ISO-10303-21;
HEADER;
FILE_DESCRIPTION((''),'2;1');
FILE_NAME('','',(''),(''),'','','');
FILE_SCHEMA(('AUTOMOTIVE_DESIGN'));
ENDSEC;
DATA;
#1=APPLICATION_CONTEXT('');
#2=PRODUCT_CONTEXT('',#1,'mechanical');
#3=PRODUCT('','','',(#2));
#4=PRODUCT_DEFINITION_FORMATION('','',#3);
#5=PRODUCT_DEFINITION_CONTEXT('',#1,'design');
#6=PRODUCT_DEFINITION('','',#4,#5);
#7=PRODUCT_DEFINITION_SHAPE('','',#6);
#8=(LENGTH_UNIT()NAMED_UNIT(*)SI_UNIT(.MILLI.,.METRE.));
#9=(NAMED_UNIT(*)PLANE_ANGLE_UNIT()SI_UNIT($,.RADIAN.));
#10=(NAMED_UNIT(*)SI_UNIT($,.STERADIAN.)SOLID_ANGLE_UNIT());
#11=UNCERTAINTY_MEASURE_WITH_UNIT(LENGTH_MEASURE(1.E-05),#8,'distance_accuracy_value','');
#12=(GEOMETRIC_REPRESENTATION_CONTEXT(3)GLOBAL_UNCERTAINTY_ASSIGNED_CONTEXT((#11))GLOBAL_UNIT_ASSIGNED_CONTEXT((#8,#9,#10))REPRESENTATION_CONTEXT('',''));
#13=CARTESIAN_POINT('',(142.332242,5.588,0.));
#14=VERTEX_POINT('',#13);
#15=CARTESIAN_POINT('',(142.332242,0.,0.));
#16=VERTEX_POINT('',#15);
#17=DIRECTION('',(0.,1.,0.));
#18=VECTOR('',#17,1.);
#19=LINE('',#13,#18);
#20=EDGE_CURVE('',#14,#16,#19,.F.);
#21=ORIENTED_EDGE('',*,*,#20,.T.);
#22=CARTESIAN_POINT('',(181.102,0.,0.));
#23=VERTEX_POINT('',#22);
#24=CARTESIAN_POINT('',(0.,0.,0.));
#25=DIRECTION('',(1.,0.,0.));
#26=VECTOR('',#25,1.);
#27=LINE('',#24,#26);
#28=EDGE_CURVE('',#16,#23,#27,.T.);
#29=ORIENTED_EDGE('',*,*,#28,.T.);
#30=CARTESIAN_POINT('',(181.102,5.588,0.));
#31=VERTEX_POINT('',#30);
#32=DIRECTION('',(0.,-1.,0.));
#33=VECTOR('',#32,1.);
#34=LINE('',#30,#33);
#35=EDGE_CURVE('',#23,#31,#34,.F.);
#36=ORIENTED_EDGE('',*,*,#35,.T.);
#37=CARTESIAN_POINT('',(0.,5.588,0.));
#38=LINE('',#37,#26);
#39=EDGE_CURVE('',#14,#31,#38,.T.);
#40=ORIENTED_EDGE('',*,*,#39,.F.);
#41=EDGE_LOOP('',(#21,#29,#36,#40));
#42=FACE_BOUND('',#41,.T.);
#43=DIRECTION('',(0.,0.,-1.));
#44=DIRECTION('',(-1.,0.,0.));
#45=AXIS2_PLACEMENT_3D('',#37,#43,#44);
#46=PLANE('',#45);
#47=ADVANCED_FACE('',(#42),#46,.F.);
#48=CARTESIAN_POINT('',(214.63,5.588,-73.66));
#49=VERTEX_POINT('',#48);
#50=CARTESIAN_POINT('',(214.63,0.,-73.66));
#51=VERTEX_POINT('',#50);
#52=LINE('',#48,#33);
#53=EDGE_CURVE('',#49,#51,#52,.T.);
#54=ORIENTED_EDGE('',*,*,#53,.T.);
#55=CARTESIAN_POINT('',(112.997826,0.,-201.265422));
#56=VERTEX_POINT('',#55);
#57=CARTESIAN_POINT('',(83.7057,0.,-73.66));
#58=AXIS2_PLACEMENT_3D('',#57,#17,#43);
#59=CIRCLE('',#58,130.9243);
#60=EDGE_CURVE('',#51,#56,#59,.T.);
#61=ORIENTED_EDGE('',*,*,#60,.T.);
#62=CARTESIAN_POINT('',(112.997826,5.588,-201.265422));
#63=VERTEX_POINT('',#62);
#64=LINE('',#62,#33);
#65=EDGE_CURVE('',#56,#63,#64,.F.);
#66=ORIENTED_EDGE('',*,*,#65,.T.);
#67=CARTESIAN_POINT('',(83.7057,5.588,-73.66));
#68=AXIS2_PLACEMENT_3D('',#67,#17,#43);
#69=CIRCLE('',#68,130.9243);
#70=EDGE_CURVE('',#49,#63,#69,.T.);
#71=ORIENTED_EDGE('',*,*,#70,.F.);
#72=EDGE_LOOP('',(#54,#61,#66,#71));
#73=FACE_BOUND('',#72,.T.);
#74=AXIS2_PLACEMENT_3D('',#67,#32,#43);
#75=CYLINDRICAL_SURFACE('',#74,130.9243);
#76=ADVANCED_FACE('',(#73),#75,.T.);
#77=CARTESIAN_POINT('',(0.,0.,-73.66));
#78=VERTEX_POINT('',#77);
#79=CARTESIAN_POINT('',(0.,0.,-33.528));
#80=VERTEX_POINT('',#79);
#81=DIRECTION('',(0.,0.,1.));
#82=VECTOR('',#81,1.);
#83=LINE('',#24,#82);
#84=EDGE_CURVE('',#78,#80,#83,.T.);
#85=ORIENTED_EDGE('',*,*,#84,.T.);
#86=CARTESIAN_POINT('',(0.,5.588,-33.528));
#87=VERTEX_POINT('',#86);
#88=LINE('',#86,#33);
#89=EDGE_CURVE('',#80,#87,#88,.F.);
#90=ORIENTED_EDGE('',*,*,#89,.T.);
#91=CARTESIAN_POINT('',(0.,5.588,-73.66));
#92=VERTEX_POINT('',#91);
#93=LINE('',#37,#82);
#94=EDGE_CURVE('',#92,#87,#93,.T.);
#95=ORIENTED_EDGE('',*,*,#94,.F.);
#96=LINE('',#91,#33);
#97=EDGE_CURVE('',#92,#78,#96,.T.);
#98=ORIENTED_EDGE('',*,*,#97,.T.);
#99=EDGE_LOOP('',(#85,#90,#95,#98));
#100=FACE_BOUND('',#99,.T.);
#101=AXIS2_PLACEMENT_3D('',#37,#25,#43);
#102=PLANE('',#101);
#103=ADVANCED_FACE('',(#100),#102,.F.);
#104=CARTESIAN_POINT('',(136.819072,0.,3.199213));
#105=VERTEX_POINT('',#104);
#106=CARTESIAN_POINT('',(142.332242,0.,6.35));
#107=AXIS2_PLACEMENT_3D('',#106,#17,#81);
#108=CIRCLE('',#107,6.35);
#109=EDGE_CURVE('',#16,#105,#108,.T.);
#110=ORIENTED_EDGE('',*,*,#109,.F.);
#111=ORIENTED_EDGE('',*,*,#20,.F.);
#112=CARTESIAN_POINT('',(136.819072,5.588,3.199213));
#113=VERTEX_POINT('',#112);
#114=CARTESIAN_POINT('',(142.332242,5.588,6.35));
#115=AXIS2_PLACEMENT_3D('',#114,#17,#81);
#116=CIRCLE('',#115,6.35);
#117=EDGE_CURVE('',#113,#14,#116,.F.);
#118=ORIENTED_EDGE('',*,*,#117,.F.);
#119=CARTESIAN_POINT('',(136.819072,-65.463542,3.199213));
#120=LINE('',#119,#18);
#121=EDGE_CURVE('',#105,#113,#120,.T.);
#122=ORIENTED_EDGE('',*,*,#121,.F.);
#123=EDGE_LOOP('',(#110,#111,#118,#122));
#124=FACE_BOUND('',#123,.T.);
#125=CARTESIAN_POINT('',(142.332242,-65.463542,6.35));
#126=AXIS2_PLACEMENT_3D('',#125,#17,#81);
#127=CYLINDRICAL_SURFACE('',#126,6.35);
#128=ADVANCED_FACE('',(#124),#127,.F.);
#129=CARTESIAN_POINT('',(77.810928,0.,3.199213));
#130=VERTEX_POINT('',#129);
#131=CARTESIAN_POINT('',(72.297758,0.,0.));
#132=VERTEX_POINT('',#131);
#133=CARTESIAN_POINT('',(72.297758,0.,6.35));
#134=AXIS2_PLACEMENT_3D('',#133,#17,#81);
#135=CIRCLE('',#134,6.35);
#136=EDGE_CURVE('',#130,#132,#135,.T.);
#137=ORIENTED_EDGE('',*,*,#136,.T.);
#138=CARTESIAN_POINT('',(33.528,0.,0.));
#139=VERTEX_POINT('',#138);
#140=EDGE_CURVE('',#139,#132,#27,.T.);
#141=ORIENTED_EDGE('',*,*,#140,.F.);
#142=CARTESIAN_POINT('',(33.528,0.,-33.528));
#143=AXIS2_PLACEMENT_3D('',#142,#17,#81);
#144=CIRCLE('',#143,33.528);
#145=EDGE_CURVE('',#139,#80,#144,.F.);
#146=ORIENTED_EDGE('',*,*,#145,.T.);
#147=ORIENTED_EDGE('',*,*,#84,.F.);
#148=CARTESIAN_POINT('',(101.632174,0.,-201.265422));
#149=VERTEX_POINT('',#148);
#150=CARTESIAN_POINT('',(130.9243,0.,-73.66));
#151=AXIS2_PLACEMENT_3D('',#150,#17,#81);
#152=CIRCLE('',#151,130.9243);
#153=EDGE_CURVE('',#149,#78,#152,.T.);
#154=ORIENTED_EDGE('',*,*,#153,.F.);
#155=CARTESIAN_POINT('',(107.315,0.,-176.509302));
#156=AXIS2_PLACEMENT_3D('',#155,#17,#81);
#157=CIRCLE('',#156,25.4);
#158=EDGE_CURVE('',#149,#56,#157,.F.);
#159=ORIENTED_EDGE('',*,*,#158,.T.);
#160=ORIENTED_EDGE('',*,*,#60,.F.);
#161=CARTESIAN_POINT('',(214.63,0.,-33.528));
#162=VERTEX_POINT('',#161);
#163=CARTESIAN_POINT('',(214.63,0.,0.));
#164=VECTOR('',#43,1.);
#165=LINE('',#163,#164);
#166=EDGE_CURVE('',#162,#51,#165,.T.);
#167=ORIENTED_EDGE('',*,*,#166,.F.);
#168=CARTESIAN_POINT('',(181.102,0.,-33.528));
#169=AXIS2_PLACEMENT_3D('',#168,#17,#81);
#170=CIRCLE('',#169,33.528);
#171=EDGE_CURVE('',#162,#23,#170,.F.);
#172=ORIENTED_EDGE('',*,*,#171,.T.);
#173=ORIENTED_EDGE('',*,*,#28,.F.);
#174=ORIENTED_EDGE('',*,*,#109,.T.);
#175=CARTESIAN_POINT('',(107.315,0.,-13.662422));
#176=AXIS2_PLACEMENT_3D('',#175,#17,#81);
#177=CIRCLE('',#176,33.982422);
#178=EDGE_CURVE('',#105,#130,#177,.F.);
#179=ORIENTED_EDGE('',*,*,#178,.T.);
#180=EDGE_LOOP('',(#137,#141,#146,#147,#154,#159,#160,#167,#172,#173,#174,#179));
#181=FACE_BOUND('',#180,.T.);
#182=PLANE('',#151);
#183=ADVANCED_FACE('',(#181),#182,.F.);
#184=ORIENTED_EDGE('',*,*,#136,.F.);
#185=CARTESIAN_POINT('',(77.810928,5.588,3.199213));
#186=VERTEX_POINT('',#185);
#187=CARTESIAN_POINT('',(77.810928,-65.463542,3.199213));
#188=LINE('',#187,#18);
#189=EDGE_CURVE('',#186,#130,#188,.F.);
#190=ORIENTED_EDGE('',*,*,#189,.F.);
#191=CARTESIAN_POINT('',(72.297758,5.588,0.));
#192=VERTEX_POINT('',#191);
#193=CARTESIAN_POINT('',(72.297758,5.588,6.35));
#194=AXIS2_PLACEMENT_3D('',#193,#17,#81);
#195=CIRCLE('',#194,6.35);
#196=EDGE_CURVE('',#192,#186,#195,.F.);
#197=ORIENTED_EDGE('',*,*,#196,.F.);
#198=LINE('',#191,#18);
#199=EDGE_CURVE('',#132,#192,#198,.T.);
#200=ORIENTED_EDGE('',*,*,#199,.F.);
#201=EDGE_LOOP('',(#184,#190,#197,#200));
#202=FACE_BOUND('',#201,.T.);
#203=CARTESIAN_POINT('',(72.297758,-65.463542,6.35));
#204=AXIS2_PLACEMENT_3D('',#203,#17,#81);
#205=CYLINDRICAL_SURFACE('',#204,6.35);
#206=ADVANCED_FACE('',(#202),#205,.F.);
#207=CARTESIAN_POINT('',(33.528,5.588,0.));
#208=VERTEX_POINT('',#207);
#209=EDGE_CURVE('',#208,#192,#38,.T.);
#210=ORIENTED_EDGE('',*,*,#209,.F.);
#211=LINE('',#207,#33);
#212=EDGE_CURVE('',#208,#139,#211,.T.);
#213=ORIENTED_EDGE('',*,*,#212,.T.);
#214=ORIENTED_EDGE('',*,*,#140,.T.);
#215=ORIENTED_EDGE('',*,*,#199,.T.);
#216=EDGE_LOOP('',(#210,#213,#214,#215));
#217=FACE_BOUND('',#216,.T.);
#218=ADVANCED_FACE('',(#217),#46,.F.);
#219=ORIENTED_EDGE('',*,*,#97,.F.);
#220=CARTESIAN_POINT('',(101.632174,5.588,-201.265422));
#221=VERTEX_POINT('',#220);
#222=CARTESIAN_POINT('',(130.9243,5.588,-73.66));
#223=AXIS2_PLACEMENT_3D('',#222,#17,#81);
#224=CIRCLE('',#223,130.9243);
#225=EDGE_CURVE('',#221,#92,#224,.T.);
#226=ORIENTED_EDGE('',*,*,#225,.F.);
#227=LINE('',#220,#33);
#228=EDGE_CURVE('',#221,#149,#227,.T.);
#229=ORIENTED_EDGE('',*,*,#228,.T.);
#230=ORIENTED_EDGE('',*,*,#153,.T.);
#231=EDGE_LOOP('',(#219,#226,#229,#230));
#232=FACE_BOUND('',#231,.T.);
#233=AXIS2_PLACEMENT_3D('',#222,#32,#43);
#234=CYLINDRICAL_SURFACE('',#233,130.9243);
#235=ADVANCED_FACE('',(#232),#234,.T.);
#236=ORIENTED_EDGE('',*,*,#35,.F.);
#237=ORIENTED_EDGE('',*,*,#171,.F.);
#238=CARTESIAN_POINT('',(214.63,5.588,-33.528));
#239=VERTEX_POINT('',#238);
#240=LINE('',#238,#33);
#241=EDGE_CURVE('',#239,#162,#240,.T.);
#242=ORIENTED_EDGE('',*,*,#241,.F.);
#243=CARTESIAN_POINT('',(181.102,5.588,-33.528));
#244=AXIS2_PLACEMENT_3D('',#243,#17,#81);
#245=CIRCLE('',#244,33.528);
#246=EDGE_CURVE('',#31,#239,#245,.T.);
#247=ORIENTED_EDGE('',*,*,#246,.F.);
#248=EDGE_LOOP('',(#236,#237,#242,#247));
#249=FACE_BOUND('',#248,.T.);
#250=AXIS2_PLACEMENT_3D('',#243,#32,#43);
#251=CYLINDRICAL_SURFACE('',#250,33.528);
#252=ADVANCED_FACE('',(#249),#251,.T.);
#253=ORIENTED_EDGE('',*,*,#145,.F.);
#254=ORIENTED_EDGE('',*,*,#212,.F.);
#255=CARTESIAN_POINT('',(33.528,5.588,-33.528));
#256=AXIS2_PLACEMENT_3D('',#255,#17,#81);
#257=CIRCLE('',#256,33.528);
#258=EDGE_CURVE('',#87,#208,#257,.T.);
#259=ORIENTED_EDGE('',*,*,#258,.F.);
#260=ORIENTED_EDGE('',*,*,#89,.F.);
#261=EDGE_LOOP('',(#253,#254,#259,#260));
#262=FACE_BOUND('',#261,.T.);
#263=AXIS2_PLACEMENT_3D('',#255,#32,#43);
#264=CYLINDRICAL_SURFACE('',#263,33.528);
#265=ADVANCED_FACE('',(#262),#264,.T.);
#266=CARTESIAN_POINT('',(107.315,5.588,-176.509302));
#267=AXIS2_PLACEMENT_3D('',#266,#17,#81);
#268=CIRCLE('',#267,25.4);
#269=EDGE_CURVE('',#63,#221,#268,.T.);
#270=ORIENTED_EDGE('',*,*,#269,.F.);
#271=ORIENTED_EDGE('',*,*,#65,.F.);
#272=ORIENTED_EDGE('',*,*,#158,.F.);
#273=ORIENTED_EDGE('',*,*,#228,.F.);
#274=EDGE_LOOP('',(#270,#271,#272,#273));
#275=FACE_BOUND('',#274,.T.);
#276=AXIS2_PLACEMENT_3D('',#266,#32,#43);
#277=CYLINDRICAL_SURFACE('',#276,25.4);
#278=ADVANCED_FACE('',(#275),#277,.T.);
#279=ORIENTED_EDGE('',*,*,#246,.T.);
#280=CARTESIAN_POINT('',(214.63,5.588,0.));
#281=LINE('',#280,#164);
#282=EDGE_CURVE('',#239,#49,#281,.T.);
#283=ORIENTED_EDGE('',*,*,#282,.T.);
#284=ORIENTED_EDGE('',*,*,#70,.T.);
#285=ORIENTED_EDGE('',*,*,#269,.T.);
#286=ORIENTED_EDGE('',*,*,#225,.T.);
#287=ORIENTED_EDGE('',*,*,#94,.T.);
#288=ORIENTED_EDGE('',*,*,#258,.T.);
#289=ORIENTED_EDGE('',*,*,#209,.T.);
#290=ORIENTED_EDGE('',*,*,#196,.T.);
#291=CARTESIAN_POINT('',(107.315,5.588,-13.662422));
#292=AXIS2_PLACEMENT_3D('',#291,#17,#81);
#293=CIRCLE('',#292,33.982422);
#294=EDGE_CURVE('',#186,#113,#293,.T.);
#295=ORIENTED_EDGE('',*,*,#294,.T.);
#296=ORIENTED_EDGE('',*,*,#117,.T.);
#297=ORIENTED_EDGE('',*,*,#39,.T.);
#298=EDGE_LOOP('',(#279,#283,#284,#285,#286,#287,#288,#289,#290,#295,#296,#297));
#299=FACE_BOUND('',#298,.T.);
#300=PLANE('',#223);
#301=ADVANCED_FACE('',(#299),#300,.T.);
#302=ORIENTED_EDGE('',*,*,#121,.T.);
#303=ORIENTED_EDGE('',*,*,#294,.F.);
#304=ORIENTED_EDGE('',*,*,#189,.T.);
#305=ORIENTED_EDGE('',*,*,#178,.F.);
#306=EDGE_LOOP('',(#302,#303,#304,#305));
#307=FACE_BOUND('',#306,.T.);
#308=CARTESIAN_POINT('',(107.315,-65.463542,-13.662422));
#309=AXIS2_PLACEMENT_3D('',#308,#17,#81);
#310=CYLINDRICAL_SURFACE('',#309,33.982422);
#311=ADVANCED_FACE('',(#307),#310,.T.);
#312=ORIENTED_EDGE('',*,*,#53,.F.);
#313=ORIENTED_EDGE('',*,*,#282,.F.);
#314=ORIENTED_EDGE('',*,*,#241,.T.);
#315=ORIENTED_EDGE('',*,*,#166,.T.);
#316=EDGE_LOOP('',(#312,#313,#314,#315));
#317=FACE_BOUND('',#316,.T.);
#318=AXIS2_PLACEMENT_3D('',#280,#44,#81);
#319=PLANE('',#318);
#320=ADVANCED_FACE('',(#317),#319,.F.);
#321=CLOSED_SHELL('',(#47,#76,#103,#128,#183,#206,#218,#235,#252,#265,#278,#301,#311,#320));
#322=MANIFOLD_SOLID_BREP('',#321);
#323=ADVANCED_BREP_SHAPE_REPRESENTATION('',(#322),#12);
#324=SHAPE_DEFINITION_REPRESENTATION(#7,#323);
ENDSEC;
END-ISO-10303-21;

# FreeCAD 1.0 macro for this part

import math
import FreeCAD as App
import Part
import Sketcher

V = App.Vector
Q = App.Units.Quantity


def edges_at(feature, points):
    """Names of the edges that pass closest to the given points."""
    edges = feature.Shape.Edges
    near = lambda p: min(range(len(edges)), key=lambda i: edges[i].distToShape(Part.Vertex(*p))[0])
    return sorted({f"Edge{near(p) + 1}" for p in points})

doc = App.newDocument("Part")
body = doc.addObject("PartDesign::Body", "Body")

sketch1 = body.newObject("Sketcher::SketchObject", "Sketch")
sketch1.AttachmentSupport = (doc.getObject("XZ_Plane"), [""])
sketch1.MapMode = "FlatFace"
sketch1.addGeometry([
    Part.LineSegment(V(0, 0, 0), V(215, 0, 0)),
    Part.LineSegment(V(215, 0, 0), V(215, -74, 0)),
    Part.ArcOfCircle(Part.Circle(V(84, -74, 0), V(0, 0, 1), 131), math.radians(-80), math.radians(0)),
    Part.ArcOfCircle(Part.Circle(V(131, -74, 0), V(0, 0, 1), 131), math.radians(-180), math.radians(-100)),
    Part.LineSegment(V(0, -74, 0), V(0, 0, 0)),
], False)
sketch1.addConstraint([
    Sketcher.Constraint("Coincident", 0, 2, 1, 1),
    Sketcher.Constraint("Tangent", 1, 2, 2, 2),
    Sketcher.Constraint("Coincident", 2, 1, 3, 2),
    Sketcher.Constraint("Tangent", 3, 1, 4, 1),
    Sketcher.Constraint("Coincident", 4, 2, 0, 1),
    Sketcher.Constraint("Horizontal", 0),
    Sketcher.Constraint("Vertical", 1),
    Sketcher.Constraint("Vertical", 4),
    Sketcher.Constraint("Coincident", 4, 2, -1, 1),
    Sketcher.Constraint("Equal", 2, 3),
    Sketcher.Constraint("Horizontal", 2, 3, 3, 3),
    Sketcher.Constraint("DistanceY", 1, 2, 1, 1, Q("2.9 in")),
    Sketcher.Constraint("DistanceX", 0, 1, 0, 2, Q("8.45 in")),
    Sketcher.Constraint("Radius", 2, Q("5.1545 in")),
])
pad1 = body.newObject("PartDesign::Pad", "Pad")
pad1.Profile = sketch1
pad1.Length = Q("0.22 in")
pad1.Reversed = True
doc.recompute()

fillet = body.newObject("PartDesign::Fillet", "Fillet")
fillet.Base = (pad1, edges_at(pad1, [(107.315, 2.794, -202.438)]))
fillet.Radius = Q("1 in")

sketch2 = body.newObject("Sketcher::SketchObject", "Sketch001")
sketch2.AttachmentSupport = (doc.getObject("XZ_Plane"), [""])
sketch2.MapMode = "FlatFace"
sketch2.AttachmentOffset = App.Placement(V(0, 0, -0.22 * 25.4), App.Rotation())
sketch2.addGeometry([
    Part.LineSegment(V(138, 0, 0), V(76, 0, 0)),
    Part.ArcOfCircle(Part.Circle(V(107, -14, 0), V(0, 0, 1), 34), math.radians(24), math.radians(156)),
], False)
sketch2.addConstraint([
    Sketcher.Constraint("Coincident", 0, 1, 1, 1),
    Sketcher.Constraint("Coincident", 1, 2, 0, 2),
    Sketcher.Constraint("Horizontal", 0),
    Sketcher.Constraint("PointOnObject", 0, 1, -1),
    Sketcher.Constraint("DistanceX", -1, 1, 1, 2, Q("3 in")),
    Sketcher.Constraint("DistanceX", 0, 2, 0, 1, Q("2.45 in")),
    Sketcher.Constraint("Radius", 1, Q("33.982422 mm")),
])
pad2 = body.newObject("PartDesign::Pad", "Pad001")
pad2.Profile = sketch2
pad2.Length = Q("0.22 in")
doc.recompute()

fillet2 = body.newObject("PartDesign::Fillet", "Fillet001")
fillet2.Base = (pad2, edges_at(pad2, [(76.2, 2.794, 0), (138.43, 2.794, 0)]))
fillet2.Radius = Q("0.25 in")
doc.recompute()

fillet3 = body.newObject("PartDesign::Fillet", "Fillet002")
fillet3.Base = (fillet2, edges_at(fillet2, [(214.63, 2.794, 0), (0, 2.794, 0)]))
fillet3.Radius = Q("1.32 in")

doc.recompute()
